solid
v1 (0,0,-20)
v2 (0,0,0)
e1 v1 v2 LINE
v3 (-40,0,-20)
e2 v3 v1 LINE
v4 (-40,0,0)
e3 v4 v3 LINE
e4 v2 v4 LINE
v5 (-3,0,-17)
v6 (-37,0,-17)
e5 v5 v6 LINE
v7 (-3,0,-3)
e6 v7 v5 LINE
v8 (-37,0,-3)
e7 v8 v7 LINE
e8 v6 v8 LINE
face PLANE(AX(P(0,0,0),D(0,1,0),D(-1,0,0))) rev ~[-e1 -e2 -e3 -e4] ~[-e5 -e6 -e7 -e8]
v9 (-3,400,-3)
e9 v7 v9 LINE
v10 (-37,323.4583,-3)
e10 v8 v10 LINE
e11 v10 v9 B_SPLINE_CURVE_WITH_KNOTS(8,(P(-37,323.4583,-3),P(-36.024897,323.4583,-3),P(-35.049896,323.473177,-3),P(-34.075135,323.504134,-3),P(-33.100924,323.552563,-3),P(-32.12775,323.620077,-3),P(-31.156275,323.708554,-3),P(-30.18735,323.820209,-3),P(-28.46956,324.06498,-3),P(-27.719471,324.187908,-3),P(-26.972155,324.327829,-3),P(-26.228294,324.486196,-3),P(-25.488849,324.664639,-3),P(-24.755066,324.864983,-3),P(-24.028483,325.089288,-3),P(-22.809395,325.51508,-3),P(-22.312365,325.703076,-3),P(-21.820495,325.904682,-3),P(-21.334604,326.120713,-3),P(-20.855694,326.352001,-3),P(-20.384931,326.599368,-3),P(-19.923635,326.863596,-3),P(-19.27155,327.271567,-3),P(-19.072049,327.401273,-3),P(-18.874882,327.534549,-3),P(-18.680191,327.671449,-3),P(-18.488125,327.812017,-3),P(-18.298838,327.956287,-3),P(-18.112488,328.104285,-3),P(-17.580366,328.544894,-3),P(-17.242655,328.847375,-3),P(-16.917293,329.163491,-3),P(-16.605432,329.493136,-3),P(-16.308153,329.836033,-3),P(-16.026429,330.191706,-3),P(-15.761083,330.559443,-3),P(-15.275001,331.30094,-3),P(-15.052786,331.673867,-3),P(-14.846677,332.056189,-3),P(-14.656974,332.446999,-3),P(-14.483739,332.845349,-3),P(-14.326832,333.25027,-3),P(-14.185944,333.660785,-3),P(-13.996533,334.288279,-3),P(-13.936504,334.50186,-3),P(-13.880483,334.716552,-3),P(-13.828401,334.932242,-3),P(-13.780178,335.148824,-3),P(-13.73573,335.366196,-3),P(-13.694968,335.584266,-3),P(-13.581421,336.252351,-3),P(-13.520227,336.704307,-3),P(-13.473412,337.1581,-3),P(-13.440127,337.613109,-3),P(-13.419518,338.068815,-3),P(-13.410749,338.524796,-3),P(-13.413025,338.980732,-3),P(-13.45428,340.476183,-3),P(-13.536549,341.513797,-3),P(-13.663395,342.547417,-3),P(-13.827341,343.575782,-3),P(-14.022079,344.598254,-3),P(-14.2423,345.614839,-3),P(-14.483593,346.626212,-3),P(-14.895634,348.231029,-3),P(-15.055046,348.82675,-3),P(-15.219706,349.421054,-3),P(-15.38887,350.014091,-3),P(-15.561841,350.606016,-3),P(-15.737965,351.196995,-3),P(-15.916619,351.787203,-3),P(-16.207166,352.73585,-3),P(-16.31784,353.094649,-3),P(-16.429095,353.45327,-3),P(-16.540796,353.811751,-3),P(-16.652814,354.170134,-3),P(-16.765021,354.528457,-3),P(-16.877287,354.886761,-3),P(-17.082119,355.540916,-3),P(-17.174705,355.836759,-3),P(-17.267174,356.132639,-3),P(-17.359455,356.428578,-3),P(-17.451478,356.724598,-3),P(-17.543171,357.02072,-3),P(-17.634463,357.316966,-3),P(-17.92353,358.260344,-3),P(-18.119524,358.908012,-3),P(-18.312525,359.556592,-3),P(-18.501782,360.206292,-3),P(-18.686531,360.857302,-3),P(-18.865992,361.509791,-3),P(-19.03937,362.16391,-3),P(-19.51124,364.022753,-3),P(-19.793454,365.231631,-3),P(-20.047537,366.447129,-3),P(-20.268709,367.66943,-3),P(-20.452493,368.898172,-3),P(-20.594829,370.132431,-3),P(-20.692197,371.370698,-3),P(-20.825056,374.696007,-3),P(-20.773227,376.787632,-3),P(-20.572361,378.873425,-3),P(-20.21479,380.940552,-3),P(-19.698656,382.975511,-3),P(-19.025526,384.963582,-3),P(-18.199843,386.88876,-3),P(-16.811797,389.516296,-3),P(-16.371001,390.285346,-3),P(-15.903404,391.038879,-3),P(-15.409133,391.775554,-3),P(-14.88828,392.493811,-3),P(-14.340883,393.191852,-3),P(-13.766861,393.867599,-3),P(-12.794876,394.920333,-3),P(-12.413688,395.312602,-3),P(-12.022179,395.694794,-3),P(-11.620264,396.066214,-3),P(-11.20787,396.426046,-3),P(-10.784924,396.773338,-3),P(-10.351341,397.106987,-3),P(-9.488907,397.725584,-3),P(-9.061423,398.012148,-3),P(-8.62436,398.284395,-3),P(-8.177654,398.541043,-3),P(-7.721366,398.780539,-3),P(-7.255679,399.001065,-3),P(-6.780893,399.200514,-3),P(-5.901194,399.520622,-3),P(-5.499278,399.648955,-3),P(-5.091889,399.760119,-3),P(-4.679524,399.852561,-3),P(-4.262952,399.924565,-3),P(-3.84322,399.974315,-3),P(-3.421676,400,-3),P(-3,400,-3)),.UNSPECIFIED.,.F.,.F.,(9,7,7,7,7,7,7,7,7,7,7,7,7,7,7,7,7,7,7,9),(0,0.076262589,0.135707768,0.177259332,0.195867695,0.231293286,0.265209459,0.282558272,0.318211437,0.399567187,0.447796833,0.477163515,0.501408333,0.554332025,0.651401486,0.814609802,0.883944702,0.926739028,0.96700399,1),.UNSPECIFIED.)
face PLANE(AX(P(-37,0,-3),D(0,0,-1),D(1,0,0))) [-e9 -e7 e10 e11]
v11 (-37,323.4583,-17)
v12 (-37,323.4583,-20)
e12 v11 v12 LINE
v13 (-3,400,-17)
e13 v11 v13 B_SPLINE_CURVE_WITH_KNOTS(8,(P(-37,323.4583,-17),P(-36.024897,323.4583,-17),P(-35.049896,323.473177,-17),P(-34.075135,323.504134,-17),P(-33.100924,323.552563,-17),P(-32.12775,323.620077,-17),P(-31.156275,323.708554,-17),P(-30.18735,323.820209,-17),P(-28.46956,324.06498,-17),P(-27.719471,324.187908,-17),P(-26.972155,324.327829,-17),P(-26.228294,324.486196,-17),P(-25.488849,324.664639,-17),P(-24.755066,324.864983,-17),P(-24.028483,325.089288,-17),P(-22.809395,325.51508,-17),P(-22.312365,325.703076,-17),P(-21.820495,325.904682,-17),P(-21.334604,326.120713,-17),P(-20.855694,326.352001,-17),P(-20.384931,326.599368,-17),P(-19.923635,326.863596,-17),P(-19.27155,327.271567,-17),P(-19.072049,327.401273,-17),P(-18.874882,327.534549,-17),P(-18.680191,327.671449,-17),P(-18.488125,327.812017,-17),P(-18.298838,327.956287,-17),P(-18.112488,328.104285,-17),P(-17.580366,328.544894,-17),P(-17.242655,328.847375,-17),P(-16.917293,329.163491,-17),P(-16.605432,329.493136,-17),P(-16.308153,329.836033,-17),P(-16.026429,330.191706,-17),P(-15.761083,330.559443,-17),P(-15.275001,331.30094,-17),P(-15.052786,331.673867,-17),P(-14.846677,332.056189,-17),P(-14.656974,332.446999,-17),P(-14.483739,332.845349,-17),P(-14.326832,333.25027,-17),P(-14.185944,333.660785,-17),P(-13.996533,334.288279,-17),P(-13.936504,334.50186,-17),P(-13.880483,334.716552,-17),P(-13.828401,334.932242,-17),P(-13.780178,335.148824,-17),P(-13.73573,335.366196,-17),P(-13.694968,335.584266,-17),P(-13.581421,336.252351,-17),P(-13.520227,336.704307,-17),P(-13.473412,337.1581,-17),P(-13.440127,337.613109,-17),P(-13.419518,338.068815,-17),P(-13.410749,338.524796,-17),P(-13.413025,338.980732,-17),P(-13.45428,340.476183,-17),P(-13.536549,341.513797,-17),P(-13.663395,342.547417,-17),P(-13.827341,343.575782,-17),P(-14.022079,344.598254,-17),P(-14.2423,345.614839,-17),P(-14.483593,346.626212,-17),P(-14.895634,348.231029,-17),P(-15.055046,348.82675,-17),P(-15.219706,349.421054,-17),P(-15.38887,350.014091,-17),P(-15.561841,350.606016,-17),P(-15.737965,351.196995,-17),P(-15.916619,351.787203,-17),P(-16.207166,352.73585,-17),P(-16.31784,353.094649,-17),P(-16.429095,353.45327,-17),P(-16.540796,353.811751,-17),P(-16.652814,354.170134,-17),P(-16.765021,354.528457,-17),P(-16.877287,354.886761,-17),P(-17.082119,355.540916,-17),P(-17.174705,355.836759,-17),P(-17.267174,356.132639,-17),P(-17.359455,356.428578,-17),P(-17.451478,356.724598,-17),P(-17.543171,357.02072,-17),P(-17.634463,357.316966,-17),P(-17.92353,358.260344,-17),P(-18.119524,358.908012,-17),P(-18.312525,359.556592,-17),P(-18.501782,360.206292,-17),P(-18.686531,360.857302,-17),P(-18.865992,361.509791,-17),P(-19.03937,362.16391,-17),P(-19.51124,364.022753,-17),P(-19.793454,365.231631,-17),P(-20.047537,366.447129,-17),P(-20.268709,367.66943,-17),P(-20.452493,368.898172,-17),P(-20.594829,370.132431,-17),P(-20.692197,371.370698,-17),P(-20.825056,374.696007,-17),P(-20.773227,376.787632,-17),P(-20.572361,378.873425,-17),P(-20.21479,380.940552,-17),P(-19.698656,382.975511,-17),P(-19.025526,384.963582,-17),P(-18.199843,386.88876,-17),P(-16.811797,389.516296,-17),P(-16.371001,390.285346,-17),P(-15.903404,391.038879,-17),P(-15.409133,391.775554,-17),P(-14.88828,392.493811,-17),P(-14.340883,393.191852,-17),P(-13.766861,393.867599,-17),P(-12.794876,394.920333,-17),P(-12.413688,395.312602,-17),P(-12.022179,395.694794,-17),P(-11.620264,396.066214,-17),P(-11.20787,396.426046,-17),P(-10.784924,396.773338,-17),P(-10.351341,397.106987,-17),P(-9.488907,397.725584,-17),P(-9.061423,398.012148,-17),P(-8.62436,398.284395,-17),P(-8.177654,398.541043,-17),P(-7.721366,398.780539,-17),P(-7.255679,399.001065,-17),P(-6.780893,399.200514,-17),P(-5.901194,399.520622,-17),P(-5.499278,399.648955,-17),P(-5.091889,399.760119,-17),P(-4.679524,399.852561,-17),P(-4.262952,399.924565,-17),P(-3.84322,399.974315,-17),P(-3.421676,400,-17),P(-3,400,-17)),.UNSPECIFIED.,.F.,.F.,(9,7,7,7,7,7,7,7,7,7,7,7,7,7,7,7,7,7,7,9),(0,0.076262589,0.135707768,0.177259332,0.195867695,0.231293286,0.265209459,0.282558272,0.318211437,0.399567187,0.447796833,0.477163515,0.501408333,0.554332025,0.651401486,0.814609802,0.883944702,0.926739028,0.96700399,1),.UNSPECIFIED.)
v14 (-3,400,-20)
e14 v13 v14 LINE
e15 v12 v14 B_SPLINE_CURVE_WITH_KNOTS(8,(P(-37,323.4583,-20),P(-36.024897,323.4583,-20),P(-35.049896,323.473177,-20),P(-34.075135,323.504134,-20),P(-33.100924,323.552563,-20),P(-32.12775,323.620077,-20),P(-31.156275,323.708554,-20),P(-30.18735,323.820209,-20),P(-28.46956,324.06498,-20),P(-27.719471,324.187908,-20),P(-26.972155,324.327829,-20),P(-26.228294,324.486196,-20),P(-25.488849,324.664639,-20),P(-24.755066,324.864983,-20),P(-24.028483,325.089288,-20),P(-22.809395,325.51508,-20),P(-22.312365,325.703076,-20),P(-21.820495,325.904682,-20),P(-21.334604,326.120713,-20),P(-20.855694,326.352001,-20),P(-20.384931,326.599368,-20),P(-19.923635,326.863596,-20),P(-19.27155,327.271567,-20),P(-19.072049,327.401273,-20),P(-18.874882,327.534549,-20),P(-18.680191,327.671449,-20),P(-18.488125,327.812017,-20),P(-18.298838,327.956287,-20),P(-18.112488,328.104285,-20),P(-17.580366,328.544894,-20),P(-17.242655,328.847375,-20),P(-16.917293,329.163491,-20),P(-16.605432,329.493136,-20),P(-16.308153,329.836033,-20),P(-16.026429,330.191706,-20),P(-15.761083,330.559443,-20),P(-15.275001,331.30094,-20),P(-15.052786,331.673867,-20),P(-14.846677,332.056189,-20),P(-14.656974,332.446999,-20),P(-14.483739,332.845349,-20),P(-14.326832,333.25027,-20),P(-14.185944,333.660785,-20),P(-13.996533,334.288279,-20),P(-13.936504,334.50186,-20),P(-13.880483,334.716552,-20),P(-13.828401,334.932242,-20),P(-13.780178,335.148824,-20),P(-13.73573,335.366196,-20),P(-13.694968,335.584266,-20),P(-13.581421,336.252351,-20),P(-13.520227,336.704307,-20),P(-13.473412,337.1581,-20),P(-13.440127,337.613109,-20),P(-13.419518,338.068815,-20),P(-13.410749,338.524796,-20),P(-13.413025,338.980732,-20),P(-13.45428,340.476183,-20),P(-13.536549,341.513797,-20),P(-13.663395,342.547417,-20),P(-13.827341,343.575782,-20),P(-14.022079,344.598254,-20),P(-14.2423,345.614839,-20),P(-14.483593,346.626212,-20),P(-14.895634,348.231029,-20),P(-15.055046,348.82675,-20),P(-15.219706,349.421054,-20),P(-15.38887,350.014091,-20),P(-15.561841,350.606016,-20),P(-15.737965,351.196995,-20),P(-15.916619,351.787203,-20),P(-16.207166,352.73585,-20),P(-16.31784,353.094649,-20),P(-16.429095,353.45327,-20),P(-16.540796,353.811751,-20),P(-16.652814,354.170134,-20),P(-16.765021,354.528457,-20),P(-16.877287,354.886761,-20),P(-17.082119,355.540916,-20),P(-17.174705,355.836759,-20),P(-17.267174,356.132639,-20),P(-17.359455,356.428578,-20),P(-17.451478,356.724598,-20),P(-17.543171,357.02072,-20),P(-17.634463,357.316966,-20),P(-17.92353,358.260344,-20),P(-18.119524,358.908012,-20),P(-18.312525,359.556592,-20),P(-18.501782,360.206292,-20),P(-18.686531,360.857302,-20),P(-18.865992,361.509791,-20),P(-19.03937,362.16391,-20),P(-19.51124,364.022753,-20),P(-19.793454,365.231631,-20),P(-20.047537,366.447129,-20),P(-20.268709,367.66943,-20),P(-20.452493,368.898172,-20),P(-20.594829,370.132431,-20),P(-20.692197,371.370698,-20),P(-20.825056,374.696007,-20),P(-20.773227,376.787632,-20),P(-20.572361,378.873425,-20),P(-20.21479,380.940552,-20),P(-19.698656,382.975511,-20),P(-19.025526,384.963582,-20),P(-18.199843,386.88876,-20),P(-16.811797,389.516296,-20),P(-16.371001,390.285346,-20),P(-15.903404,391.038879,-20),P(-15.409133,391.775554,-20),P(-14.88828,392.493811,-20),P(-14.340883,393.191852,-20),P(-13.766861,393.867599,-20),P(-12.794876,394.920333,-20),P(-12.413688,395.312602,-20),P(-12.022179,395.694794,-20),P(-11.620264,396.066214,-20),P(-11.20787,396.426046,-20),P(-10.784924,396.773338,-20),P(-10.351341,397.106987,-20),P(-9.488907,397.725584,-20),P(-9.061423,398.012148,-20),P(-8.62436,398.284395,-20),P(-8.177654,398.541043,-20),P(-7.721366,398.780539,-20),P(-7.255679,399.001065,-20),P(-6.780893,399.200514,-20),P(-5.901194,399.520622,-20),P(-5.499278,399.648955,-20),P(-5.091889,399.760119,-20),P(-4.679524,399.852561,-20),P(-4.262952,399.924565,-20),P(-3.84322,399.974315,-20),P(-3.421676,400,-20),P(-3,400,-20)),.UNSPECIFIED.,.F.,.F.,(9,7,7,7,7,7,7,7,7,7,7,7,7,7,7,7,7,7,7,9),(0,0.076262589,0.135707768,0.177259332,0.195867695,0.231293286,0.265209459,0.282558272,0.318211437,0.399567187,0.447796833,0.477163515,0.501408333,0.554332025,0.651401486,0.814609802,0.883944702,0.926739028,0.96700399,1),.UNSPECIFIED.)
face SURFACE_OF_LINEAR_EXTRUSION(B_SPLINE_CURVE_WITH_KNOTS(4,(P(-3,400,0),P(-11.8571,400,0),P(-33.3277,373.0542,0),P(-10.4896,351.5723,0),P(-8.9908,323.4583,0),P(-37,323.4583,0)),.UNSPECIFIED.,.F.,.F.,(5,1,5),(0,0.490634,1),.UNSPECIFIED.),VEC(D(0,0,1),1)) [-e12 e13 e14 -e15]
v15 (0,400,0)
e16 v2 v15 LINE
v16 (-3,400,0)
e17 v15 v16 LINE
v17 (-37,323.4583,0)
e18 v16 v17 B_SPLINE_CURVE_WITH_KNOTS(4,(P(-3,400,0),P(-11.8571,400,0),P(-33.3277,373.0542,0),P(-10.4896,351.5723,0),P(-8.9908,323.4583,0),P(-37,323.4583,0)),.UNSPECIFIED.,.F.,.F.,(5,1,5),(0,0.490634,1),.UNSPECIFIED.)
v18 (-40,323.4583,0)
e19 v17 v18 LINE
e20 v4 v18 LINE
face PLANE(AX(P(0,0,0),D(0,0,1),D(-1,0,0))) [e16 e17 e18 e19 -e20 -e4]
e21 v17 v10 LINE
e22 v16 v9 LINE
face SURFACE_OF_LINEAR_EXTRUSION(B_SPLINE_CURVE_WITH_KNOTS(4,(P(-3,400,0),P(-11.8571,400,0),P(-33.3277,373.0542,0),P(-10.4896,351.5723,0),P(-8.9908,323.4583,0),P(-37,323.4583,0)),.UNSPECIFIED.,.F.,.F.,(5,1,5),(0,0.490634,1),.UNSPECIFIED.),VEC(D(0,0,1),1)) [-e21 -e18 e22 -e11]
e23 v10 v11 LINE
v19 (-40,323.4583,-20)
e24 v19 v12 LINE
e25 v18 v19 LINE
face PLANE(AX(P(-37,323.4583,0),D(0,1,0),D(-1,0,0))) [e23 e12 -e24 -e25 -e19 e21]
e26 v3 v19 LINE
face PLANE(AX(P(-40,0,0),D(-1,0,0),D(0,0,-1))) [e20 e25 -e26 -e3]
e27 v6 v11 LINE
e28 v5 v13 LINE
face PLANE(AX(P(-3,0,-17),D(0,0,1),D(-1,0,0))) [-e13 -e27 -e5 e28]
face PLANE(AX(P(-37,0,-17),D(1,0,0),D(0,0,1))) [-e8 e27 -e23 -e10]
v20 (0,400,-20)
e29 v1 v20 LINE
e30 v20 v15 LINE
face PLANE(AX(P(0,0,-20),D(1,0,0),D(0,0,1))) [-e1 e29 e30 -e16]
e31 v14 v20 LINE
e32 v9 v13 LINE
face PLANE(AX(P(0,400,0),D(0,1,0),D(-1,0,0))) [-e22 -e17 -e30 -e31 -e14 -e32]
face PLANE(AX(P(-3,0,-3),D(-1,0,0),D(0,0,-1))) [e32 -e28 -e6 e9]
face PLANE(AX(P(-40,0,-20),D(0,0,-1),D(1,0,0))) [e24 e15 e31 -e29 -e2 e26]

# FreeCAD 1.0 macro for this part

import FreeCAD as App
import Part
import Sketcher


def add_polygon(sketch, points):
    """Adds a closed chain of lines whose ends are joined by coincident constraints."""
    first, n = sketch.GeometryCount, len(points)
    for a, b in zip(points, points[1:] + points[:1]):
        sketch.addGeometry(Part.LineSegment(App.Vector(*a, 0), App.Vector(*b, 0)), False)
    for i in range(n):
        sketch.addConstraint(Sketcher.Constraint("Coincident", first + i, 2, first + (i + 1) % n, 1))

doc = App.newDocument("Part")
body = doc.addObject("PartDesign::Body", "Body")

# Sketch on XZ plane
sketch1 = doc.addObject("Sketcher::SketchObject", "Sketch")
body.addObject(sketch1)
sketch1.AttachmentSupport = (doc.XZ_Plane, [""])
sketch1.MapMode = "FlatFace"
add_polygon(sketch1, [(-40, 0), (0, 0), (0, -20), (-40, -20)])  # lines 0-3
add_polygon(sketch1, [(-3, -3), (-37, -3), (-37, -17), (-3, -17)])  # lines 4-7
sketch1.addConstraint([
    Sketcher.Constraint("Horizontal", 0),
    Sketcher.Constraint("Vertical", 1),
    Sketcher.Constraint("Horizontal", 2),
    Sketcher.Constraint("Vertical", 3),
    Sketcher.Constraint("Horizontal", 4),
    Sketcher.Constraint("Vertical", 5),
    Sketcher.Constraint("Horizontal", 6),
    Sketcher.Constraint("Vertical", 7),
    Sketcher.Constraint("Coincident", 0, 2, -1, 1),
    Sketcher.Constraint("DistanceX", 0, 1, 0, 2, 40.0),
    Sketcher.Constraint("DistanceY", 1, 2, 1, 1, 20.0),
    Sketcher.Constraint("DistanceY", 4, 2, -1, 1, 3.0),
    Sketcher.Constraint("DistanceX", 6, 2, -1, 1, 3.0),
    Sketcher.Constraint("DistanceX", 3, 2, 4, 2, 3.0),
    Sketcher.Constraint("DistanceY", 2, 2, 5, 2, 3.0),
])
pad1 = doc.addObject("PartDesign::Pad", "Pad")
body.addObject(pad1)
pad1.Profile = sketch1
pad1.Length = 400
pad1.Reversed = True

# Sketch on XY plane
sketch2 = doc.addObject("Sketcher::SketchObject", "Sketch001")
body.addObject(sketch2)
sketch2.AttachmentSupport = (doc.XY_Plane, [""])
sketch2.MapMode = "FlatFace"
sketch2.addGeometry([
    Part.LineSegment(App.Vector(-40, 323.4583, 0), App.Vector(-37, 323.4583, 0)),
    Part.BSplineCurve([App.Vector(-3, 400, 0), App.Vector(-11.8571, 400, 0), App.Vector(-33.3277, 373.0542, 0), App.Vector(-10.4896, 351.5723, 0), App.Vector(-8.9908, 323.4583, 0), App.Vector(-37, 323.4583, 0)], [5, 1, 5], [0, 0.490634, 1], False, 4, [1, 1, 1, 1, 1, 1], False),
    Part.LineSegment(App.Vector(-3, 400, 0), App.Vector(-40, 400, 0)),
    Part.LineSegment(App.Vector(-40, 400, 0), App.Vector(-40, 323.4583, 0)),
], False)
sketch2.addConstraint([
    Sketcher.Constraint("Block", 1),
    Sketcher.Constraint("Coincident", 0, 2, 1, 2),
    Sketcher.Constraint("Coincident", 1, 1, 2, 1),
    Sketcher.Constraint("Coincident", 2, 2, 3, 1),
    Sketcher.Constraint("Coincident", 3, 2, 0, 1),
    Sketcher.Constraint("Horizontal", 0),
    Sketcher.Constraint("Horizontal", 2),
    Sketcher.Constraint("Vertical", 3),
    Sketcher.Constraint("DistanceX", 0, 1, 0, 2, 3.0),
])
pocket1 = doc.addObject("PartDesign::Pocket", "Pocket")
body.addObject(pocket1)
pocket1.Profile = sketch2
pocket1.Type = "ThroughAll"

doc.recompute()
